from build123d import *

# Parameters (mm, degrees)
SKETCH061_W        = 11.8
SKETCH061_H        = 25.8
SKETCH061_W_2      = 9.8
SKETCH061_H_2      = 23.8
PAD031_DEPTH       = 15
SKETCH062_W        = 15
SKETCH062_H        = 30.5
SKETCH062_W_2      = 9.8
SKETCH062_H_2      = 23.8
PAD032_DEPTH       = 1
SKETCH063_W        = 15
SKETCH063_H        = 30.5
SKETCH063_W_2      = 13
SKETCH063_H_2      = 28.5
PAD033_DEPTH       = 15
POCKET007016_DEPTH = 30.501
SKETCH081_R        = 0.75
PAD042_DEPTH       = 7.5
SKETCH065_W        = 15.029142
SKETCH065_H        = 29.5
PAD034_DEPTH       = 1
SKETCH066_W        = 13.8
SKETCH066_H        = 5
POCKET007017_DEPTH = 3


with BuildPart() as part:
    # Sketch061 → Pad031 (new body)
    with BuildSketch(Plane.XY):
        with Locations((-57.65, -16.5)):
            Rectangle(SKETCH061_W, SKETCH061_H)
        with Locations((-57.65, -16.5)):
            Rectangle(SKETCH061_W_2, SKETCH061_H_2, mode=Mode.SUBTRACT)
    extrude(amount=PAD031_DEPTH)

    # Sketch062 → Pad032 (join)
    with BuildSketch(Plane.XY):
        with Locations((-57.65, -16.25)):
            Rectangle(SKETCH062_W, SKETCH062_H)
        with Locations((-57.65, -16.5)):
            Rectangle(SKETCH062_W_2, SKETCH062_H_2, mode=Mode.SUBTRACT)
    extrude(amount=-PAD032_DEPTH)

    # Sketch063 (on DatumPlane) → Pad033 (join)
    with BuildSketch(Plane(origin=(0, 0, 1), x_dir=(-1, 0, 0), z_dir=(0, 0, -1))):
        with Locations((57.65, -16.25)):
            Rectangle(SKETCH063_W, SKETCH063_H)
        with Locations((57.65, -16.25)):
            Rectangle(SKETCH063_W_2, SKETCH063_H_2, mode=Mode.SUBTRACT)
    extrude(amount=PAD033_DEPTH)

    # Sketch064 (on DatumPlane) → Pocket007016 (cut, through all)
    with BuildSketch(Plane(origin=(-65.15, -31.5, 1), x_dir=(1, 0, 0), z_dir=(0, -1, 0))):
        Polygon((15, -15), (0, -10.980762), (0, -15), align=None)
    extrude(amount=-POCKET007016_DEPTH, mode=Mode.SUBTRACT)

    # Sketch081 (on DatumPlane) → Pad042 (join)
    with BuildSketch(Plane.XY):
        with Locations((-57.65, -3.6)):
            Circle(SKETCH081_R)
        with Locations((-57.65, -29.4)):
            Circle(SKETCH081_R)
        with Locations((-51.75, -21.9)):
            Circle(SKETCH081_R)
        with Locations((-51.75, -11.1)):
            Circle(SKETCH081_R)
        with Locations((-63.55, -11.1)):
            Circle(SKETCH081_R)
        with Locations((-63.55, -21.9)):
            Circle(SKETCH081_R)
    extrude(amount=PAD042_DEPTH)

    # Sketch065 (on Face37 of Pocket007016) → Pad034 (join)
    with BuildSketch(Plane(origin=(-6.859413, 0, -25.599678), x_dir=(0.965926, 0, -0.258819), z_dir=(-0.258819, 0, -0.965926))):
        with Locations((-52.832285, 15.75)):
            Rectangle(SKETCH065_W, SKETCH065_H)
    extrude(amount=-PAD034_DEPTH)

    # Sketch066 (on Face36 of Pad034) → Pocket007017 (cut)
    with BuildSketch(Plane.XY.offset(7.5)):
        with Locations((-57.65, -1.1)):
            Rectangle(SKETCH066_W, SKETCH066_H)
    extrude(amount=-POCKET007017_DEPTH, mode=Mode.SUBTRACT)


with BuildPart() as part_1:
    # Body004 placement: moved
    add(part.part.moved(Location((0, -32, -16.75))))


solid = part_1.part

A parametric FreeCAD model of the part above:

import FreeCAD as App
import Part
import Sketcher
Q = App.Units.Quantity

doc = App.newDocument("Part")
body = doc.addObject("PartDesign::Body", "Body")

# Sketch on XY plane
sketch1 = body.newObject("Sketcher::SketchObject", "Sketch")
sketch1.AttachmentSupport = (doc.getObject("XY_Plane"), [""])
sketch1.MapMode = "FlatFace"
sketch1.addGeometry([
    Part.LineSegment(App.Vector(-64, -4, 0), App.Vector(-64, -29, 0)),  # 0
    Part.LineSegment(App.Vector(-64, -29, 0), App.Vector(-52, -29, 0)),  # 1
    Part.LineSegment(App.Vector(-52, -29, 0), App.Vector(-52, -4, 0)),  # 2
    Part.LineSegment(App.Vector(-52, -4, 0), App.Vector(-64, -4, 0)),  # 3
    Part.LineSegment(App.Vector(-53, -28, 0), App.Vector(-63, -28, 0)),  # 4
    Part.LineSegment(App.Vector(-63, -28, 0), App.Vector(-63, -5, 0)),  # 5
    Part.LineSegment(App.Vector(-63, -5, 0), App.Vector(-53, -5, 0)),  # 6
    Part.LineSegment(App.Vector(-53, -5, 0), App.Vector(-53, -28, 0)),  # 7
], False)
sketch1.addConstraint([
    Sketcher.Constraint("Coincident", 0, 2, 1, 1),
    Sketcher.Constraint("Coincident", 1, 2, 2, 1),
    Sketcher.Constraint("Coincident", 2, 2, 3, 1),
    Sketcher.Constraint("Coincident", 3, 2, 0, 1),
    Sketcher.Constraint("Coincident", 4, 2, 5, 1),
    Sketcher.Constraint("Coincident", 5, 2, 6, 1),
    Sketcher.Constraint("Coincident", 6, 2, 7, 1),
    Sketcher.Constraint("Coincident", 7, 2, 4, 1),
    Sketcher.Constraint("Vertical", 0),
    Sketcher.Constraint("Horizontal", 1),
    Sketcher.Constraint("Vertical", 2),
    Sketcher.Constraint("Horizontal", 3),
    Sketcher.Constraint("Horizontal", 4),
    Sketcher.Constraint("Vertical", 5),
    Sketcher.Constraint("Horizontal", 6),
    Sketcher.Constraint("Vertical", 7),
    Sketcher.Constraint("DistanceX", 1, 1, 1, 2, 11.8),
    Sketcher.Constraint("DistanceX", 4, 2, 4, 1, 9.8),
    Sketcher.Constraint("DistanceY", 0, 2, 0, 1, 25.8),
    Sketcher.Constraint("DistanceY", 5, 1, 5, 2, 23.8),
    Sketcher.Constraint("DistanceX", 0, 2, 4, 2, 1.0),
    Sketcher.Constraint("DistanceY", 0, 2, 4, 2, 1.0),
    Sketcher.Constraint("DistanceY", 0, 2, -1, 1, 29.4),
    Sketcher.Constraint("DistanceX", 0, 2, -1, 1, 63.55),
])
pad1 = body.newObject("PartDesign::Pad", "Pad")
pad1.Profile = sketch1
pad1.Length = 15

# Sketch on XY plane
sketch2 = body.newObject("Sketcher::SketchObject", "Sketch001")
sketch2.AttachmentSupport = (doc.getObject("XY_Plane"), [""])
sketch2.MapMode = "FlatFace"
sketch2.addGeometry([
    Part.LineSegment(App.Vector(-65, -1, 0), App.Vector(-65, -32, 0)),  # 0
    Part.LineSegment(App.Vector(-65, -32, 0), App.Vector(-50, -32, 0)),  # 1
    Part.LineSegment(App.Vector(-50, -32, 0), App.Vector(-50, -1, 0)),  # 2
    Part.LineSegment(App.Vector(-50, -1, 0), App.Vector(-65, -1, 0)),  # 3
    Part.LineSegment(App.Vector(-53, -28, 0), App.Vector(-63, -28, 0)),  # 4
    Part.LineSegment(App.Vector(-63, -28, 0), App.Vector(-63, -5, 0)),  # 5
    Part.LineSegment(App.Vector(-63, -5, 0), App.Vector(-53, -5, 0)),  # 6
    Part.LineSegment(App.Vector(-53, -5, 0), App.Vector(-53, -28, 0)),  # 7
], False)
sketch2.addConstraint([
    Sketcher.Constraint("Coincident", 0, 2, 1, 1),
    Sketcher.Constraint("Coincident", 1, 2, 2, 1),
    Sketcher.Constraint("Coincident", 2, 2, 3, 1),
    Sketcher.Constraint("Coincident", 3, 2, 0, 1),
    Sketcher.Constraint("Coincident", 4, 2, 5, 1),
    Sketcher.Constraint("Coincident", 5, 2, 6, 1),
    Sketcher.Constraint("Coincident", 6, 2, 7, 1),
    Sketcher.Constraint("Coincident", 7, 2, 4, 1),
    Sketcher.Constraint("Vertical", 0),
    Sketcher.Constraint("Horizontal", 1),
    Sketcher.Constraint("Vertical", 2),
    Sketcher.Constraint("Horizontal", 3),
    Sketcher.Constraint("Horizontal", 4),
    Sketcher.Constraint("Vertical", 5),
    Sketcher.Constraint("Horizontal", 6),
    Sketcher.Constraint("Vertical", 7),
    Sketcher.Constraint("DistanceX", 1, 1, 1, 2, 15.0),
    Sketcher.Constraint("DistanceX", 4, 2, 4, 1, 9.8),
    Sketcher.Constraint("DistanceY", 0, 2, 0, 1, 30.5),
    Sketcher.Constraint("DistanceY", 5, 1, 5, 2, 23.8),
    Sketcher.Constraint("DistanceY", 2, 2, -1, 1, 1.0),
    Sketcher.Constraint("DistanceY", 4, 2, -1, 1, 28.4),
    Sketcher.Constraint("DistanceX", 0, 2, 4, 2, 2.6),
    Sketcher.Constraint("DistanceX", 0, 2, -1, 1, 65.15),
])
pad2 = body.newObject("PartDesign::Pad", "Pad001")
pad2.Profile = sketch2
pad2.Length = 1
pad2.Reversed = True

# Sketch on XY plane
sketch3 = body.newObject("Sketcher::SketchObject", "Sketch002")
sketch3.AttachmentSupport = (doc.getObject("XY_Plane"), [""])
sketch3.MapMode = "FlatFace"
sketch3.AttachmentOffset = App.Placement(App.Vector(0, 0, 1), App.Rotation())
sketch3.addGeometry([
    Part.LineSegment(App.Vector(-50, -1, 0), App.Vector(-50, -32, 0)),  # 0
    Part.LineSegment(App.Vector(-50, -32, 0), App.Vector(-65, -32, 0)),  # 1
    Part.LineSegment(App.Vector(-65, -32, 0), App.Vector(-65, -1, 0)),  # 2
    Part.LineSegment(App.Vector(-65, -1, 0), App.Vector(-50, -1, 0)),  # 3
    Part.LineSegment(App.Vector(-64, -30, 0), App.Vector(-51, -30, 0)),  # 4
    Part.LineSegment(App.Vector(-51, -30, 0), App.Vector(-51, -2, 0)),  # 5
    Part.LineSegment(App.Vector(-51, -2, 0), App.Vector(-64, -2, 0)),  # 6
    Part.LineSegment(App.Vector(-64, -2, 0), App.Vector(-64, -30, 0)),  # 7
], False)
sketch3.addConstraint([
    Sketcher.Constraint("Coincident", 0, 2, 1, 1),
    Sketcher.Constraint("Coincident", 1, 2, 2, 1),
    Sketcher.Constraint("Coincident", 2, 2, 3, 1),
    Sketcher.Constraint("Coincident", 3, 2, 0, 1),
    Sketcher.Constraint("Coincident", 4, 2, 5, 1),
    Sketcher.Constraint("Coincident", 5, 2, 6, 1),
    Sketcher.Constraint("Coincident", 6, 2, 7, 1),
    Sketcher.Constraint("Coincident", 7, 2, 4, 1),
    Sketcher.Constraint("Vertical", 0),
    Sketcher.Constraint("Horizontal", 1),
    Sketcher.Constraint("Vertical", 2),
    Sketcher.Constraint("Horizontal", 3),
    Sketcher.Constraint("Horizontal", 4),
    Sketcher.Constraint("Vertical", 5),
    Sketcher.Constraint("Horizontal", 6),
    Sketcher.Constraint("Vertical", 7),
    Sketcher.Constraint("DistanceX", 1, 2, 1, 1, 15.0),
    Sketcher.Constraint("DistanceX", 4, 1, 4, 2, 13.0),
    Sketcher.Constraint("DistanceY", 0, 2, 0, 1, 30.5),
    Sketcher.Constraint("DistanceY", 5, 1, 5, 2, 28.5),
    Sketcher.Constraint("DistanceY", 2, 2, -1, 1, 1.0),
    Sketcher.Constraint("DistanceY", 5, 2, -1, 1, 2.0),
    Sketcher.Constraint("DistanceX", 4, 2, 0, 2, 1.0),
    Sketcher.Constraint("DistanceX", 0, 2, -1, 1, 50.15),
])
pad3 = body.newObject("PartDesign::Pad", "Pad002")
pad3.Profile = sketch3
pad3.Length = 15
pad3.Reversed = True

# Sketch on XZ plane
sketch4 = body.newObject("Sketcher::SketchObject", "Sketch003")
sketch4.AttachmentSupport = (doc.getObject("XZ_Plane"), [""])
sketch4.MapMode = "FlatFace"
sketch4.AttachmentOffset = App.Placement(App.Vector(0, 0, 31.5), App.Rotation())
sketch4.addGeometry([
    Part.LineSegment(App.Vector(-50.1, -14, 0), App.Vector(-65.2, -10, 0)),
    Part.LineSegment(App.Vector(-65.2, -10, 0), App.Vector(-65.2, -14, 0)),
    Part.LineSegment(App.Vector(-65.2, -14, 0), App.Vector(-50.1, -14, 0)),
], False)
sketch4.addConstraint([
    Sketcher.Constraint("Coincident", 0, 2, 1, 1),
    Sketcher.Constraint("Coincident", 1, 2, 2, 1),
    Sketcher.Constraint("Coincident", 2, 2, 0, 1),
    Sketcher.Constraint("Vertical", 1),
    Sketcher.Constraint("Horizontal", 2),
    Sketcher.Constraint("DistanceX", 2, 1, 2, 2, 15.0),
    Sketcher.Constraint("Angle", 0, Q("165 deg")),
    Sketcher.Constraint("DistanceY", 1, 2, -1, 1, 14.0),
    Sketcher.Constraint("DistanceX", 0, 2, -1, 1, 65.15),
])
pocket1 = body.newObject("PartDesign::Pocket", "Pocket")
pocket1.Profile = sketch4
pocket1.Type = "ThroughAll"

# Sketch on XY plane
sketch5 = body.newObject("Sketcher::SketchObject", "Sketch004")
sketch5.AttachmentSupport = (doc.getObject("XY_Plane"), [""])
sketch5.MapMode = "FlatFace"
sketch5.addGeometry([
    Part.Circle(App.Vector(-57.6, -3.6, 0), App.Vector(0, 0, 1), 0.8),  # 0
    Part.Circle(App.Vector(-57.6, -29.4, 0), App.Vector(0, 0, 1), 0.8),  # 1
    Part.Circle(App.Vector(-51.8, -21.9, 0), App.Vector(0, 0, 1), 0.8),  # 2
    Part.Circle(App.Vector(-51.8, -11.1, 0), App.Vector(0, 0, 1), 0.8),  # 3
    Part.Circle(App.Vector(-63.5, -11.1, 0), App.Vector(0, 0, 1), 0.8),  # 4
    Part.Circle(App.Vector(-63.5, -21.9, 0), App.Vector(0, 0, 1), 0.8),  # 5
], False)
sketch5.addConstraint([
    Sketcher.Constraint("Equal", 0, 1),
    Sketcher.Constraint("Equal", 1, 2),
    Sketcher.Constraint("Equal", 2, 3),
    Sketcher.Constraint("Equal", 3, 4),
    Sketcher.Constraint("Equal", 4, 5),
    Sketcher.Constraint("Horizontal", 3, 3, 4, 3),
    Sketcher.Constraint("Horizontal", 2, 3, 5, 3),
    Sketcher.Constraint("Vertical", 0, 3, 1, 3),
    Sketcher.Constraint("Vertical", 2, 3, 3, 3),
    Sketcher.Constraint("Vertical", 4, 3, 5, 3),
    Sketcher.Constraint("Diameter", 0, 1.5),
    Sketcher.Constraint("DistanceY", 0, 3, -1, 1, 3.6),
    Sketcher.Constraint("DistanceY", 1, 3, -1, 1, 29.4),
    Sketcher.Constraint("DistanceY", 2, 3, -1, 1, 21.9),
    Sketcher.Constraint("DistanceY", 3, 3, -1, 1, 11.1),
    Sketcher.Constraint("DistanceX", 1, 3, 2, 3, 5.9),
    Sketcher.Constraint("DistanceX", 4, 3, 0, 3, 5.9),
    Sketcher.Constraint("DistanceX", 0, 3, -1, 1, 57.65),
])
pad4 = body.newObject("PartDesign::Pad", "Pad003")
pad4.Profile = sketch5
pad4.Length = 7.5

# Sketch on an angled plane
sketch6 = body.newObject("Sketcher::SketchObject", "Sketch005")
sketch6.Placement = App.Placement(App.Vector(-6.859413, 0, -25.599678), App.Rotation(App.Vector(0.965925849, 0, -0.25881896), App.Vector(0, -1, 0), App.Vector(-0.25881896, 0, -0.965925849), "ZXY"))
sketch6.addGeometry([
    Part.LineSegment(App.Vector(-60, 30, 0), App.Vector(-60, 1, 0)),
    Part.LineSegment(App.Vector(-60, 1, 0), App.Vector(-45, 1, 0)),
    Part.LineSegment(App.Vector(-45, 1, 0), App.Vector(-45, 30, 0)),
    Part.LineSegment(App.Vector(-45, 30, 0), App.Vector(-60, 30, 0)),
], False)
sketch6.addConstraint([
    Sketcher.Constraint("Coincident", 0, 2, 1, 1),
    Sketcher.Constraint("Coincident", 1, 2, 2, 1),
    Sketcher.Constraint("Coincident", 2, 2, 3, 1),
    Sketcher.Constraint("Coincident", 3, 2, 0, 1),
    Sketcher.Constraint("Vertical", 0),
    Sketcher.Constraint("Horizontal", 1),
    Sketcher.Constraint("Vertical", 2),
    Sketcher.Constraint("Horizontal", 3),
    Sketcher.Constraint("DistanceY", 0, 2, 0, 1, 29.5),
    Sketcher.Constraint("DistanceY", -1, 1, 0, 2, 1.0),
    Sketcher.Constraint("DistanceX", 1, 1, 1, 2, 15.029142),
    Sketcher.Constraint("DistanceX", 0, 2, -1, 1, 60.346856),
])
pad5 = body.newObject("PartDesign::Pad", "Pad004")
pad5.Profile = sketch6
pad5.Length = 1
pad5.Reversed = True

# Sketch on XY plane
sketch7 = body.newObject("Sketcher::SketchObject", "Sketch006")
sketch7.AttachmentSupport = (doc.getObject("XY_Plane"), [""])
sketch7.MapMode = "FlatFace"
sketch7.AttachmentOffset = App.Placement(App.Vector(0, 0, 7.5), App.Rotation())
sketch7.addGeometry([
    Part.LineSegment(App.Vector(-65, 1, 0), App.Vector(-65, -4, 0)),
    Part.LineSegment(App.Vector(-65, -4, 0), App.Vector(-51, -4, 0)),
    Part.LineSegment(App.Vector(-51, -4, 0), App.Vector(-51, 1, 0)),
    Part.LineSegment(App.Vector(-51, 1, 0), App.Vector(-65, 1, 0)),
], False)
sketch7.addConstraint([
    Sketcher.Constraint("Coincident", 0, 2, 1, 1),
    Sketcher.Constraint("Coincident", 1, 2, 2, 1),
    Sketcher.Constraint("Coincident", 2, 2, 3, 1),
    Sketcher.Constraint("Coincident", 3, 2, 0, 1),
    Sketcher.Constraint("Vertical", 0),
    Sketcher.Constraint("Horizontal", 1),
    Sketcher.Constraint("Vertical", 2),
    Sketcher.Constraint("Horizontal", 3),
    Sketcher.Constraint("DistanceY", 0, 2, 0, 1, 5.0),
    Sketcher.Constraint("DistanceX", 1, 1, 1, 2, 13.8),
    Sketcher.Constraint("DistanceY", 0, 2, -1, 1, 3.6),
    Sketcher.Constraint("DistanceX", 0, 2, -1, 1, 64.55),
])
pocket2 = body.newObject("PartDesign::Pocket", "Pocket001")
pocket2.Profile = sketch7
pocket2.Length = 3
body2 = doc.addObject("PartDesign::Body", "Body001")
doc.recompute()

body.Placement = App.Placement(App.Vector(0, -32, -16.75), App.Rotation(App.Vector(0, 0, 1), 0))
boolean = body2.newObject("PartDesign::Boolean", "Boolean")
boolean.Type = "Fuse"
boolean.addObjects([body])

doc.recompute()
